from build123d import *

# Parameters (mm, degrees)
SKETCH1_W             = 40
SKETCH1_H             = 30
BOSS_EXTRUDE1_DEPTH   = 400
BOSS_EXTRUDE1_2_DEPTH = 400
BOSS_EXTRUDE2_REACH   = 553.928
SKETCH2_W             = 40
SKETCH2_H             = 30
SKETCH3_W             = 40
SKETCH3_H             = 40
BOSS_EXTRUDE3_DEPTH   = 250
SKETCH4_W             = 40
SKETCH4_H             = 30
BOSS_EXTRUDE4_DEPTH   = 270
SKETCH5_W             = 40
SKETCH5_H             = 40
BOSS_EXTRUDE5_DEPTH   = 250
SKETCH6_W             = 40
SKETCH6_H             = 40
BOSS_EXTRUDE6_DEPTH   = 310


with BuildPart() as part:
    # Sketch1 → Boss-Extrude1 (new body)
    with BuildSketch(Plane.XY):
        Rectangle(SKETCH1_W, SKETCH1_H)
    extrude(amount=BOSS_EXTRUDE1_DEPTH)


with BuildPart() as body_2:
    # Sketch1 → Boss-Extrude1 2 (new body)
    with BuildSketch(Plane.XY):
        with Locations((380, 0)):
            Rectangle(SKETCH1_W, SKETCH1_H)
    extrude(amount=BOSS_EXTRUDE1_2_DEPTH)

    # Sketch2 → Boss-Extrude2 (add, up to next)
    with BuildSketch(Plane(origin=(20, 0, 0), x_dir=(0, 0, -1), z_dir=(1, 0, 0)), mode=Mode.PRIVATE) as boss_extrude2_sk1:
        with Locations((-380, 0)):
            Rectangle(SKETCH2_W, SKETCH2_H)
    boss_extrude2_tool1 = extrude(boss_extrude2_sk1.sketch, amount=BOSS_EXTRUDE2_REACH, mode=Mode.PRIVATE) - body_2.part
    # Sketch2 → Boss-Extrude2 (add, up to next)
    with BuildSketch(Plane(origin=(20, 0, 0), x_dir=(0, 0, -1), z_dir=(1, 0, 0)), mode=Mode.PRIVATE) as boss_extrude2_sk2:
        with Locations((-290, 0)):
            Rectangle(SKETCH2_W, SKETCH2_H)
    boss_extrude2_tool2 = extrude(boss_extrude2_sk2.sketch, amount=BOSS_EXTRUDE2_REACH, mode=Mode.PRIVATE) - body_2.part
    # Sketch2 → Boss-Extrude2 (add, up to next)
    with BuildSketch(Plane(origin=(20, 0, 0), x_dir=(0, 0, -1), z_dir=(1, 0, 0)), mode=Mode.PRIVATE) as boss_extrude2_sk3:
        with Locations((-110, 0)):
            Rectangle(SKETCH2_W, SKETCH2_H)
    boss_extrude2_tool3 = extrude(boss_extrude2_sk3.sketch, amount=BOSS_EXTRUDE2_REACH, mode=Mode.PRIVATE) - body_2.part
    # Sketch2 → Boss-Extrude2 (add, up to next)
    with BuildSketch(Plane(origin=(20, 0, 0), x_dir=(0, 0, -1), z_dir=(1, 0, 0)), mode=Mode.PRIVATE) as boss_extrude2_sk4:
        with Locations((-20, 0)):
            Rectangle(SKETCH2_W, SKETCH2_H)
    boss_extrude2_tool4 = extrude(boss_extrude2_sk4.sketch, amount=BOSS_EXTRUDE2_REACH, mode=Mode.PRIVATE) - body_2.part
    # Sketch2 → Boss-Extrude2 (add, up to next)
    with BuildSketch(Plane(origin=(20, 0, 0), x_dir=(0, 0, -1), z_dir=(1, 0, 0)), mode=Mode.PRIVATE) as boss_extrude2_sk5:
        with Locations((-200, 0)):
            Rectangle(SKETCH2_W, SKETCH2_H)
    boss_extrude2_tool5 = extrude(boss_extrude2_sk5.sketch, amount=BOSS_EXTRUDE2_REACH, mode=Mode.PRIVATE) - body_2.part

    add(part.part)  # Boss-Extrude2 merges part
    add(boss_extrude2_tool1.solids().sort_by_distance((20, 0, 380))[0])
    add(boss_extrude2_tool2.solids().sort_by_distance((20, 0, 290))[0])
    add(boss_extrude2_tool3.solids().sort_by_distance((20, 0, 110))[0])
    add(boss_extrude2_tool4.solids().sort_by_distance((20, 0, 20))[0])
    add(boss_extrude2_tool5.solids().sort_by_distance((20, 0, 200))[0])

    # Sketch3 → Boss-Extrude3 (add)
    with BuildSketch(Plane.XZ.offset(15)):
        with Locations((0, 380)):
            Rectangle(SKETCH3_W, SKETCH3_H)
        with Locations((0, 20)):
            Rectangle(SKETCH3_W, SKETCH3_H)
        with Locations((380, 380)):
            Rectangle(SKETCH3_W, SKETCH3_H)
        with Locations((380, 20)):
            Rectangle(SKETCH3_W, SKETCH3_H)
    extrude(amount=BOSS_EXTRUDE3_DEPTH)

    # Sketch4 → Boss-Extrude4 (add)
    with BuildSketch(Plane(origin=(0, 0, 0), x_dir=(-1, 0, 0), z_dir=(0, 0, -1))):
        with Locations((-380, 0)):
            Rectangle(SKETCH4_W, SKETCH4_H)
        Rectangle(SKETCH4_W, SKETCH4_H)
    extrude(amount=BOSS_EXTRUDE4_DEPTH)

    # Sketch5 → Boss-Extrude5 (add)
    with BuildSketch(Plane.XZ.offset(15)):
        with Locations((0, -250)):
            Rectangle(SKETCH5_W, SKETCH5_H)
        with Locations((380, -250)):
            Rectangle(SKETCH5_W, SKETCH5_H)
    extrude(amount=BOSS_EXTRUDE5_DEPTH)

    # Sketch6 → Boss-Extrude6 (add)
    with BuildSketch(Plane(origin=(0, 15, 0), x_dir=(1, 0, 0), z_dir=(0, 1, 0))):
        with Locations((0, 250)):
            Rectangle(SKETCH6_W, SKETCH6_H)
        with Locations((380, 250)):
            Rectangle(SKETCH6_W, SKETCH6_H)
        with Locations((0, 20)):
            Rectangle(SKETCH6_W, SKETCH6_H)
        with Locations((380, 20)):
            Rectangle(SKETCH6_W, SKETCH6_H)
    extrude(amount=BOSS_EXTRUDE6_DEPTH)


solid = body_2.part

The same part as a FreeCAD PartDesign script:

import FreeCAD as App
import Part
import Sketcher
from FreeCAD import Vector
Q = App.Units.Quantity


def add_polygon(sketch, points):
    """Adds a closed chain of lines whose ends are joined by coincident constraints."""
    first, n = sketch.GeometryCount, len(points)
    for a, b in zip(points, points[1:] + points[:1]):
        sketch.addGeometry(Part.LineSegment(App.Vector(*a, 0), App.Vector(*b, 0)), False)
    for i in range(n):
        sketch.addConstraint(Sketcher.Constraint("Coincident", first + i, 2, first + (i + 1) % n, 1))

doc = App.newDocument("Part")
body = doc.addObject("PartDesign::Body", "Body")

# Sketch on XY plane
sketch1 = body.newObject("Sketcher::SketchObject", "Sketch")
sketch1.AttachmentSupport = (doc.getObject("XY_Plane"), [""])
sketch1.MapMode = "FlatFace"
add_polygon(sketch1, [(-20, 15), (-20, -15), (20, -15), (20, 15)])  # lines 0-3
sketch1.addConstraint(Sketcher.Constraint("Vertical", 0))
sketch1.addConstraint(Sketcher.Constraint("Horizontal", 1))
sketch1.addConstraint(Sketcher.Constraint("Vertical", 2))
sketch1.addConstraint(Sketcher.Constraint("Horizontal", 3))
sketch1.addConstraint(Sketcher.Constraint("Symmetric", 0, 2, 2, 2, -1, 1))
sketch1.addConstraint(Sketcher.Constraint("DistanceX", 1, 1, 1, 2, Q("40 mm")))
sketch1.addConstraint(Sketcher.Constraint("DistanceY", 0, 2, 0, 1, Q("30 mm")))
pad1 = body.newObject("PartDesign::Pad", "Pad")
pad1.Profile = sketch1
pad1.Length = 400
body2 = doc.addObject("PartDesign::Body", "Body001")
body2.AllowCompound = True

# Sketch on XY plane
sketch2 = body2.newObject("Sketcher::SketchObject", "Sketch001")
sketch2.AttachmentSupport = (doc.getObject("XY_Plane001"), [""])
sketch2.MapMode = "FlatFace"
add_polygon(sketch2, [(360, 15), (360, -15), (400, -15), (400, 15)])  # lines 0-3
sketch2.addConstraint(Sketcher.Constraint("Vertical", 0))
sketch2.addConstraint(Sketcher.Constraint("Horizontal", 1))
sketch2.addConstraint(Sketcher.Constraint("Vertical", 2))
sketch2.addConstraint(Sketcher.Constraint("Horizontal", 3))
sketch2.addConstraint(Sketcher.Constraint("DistanceX", 1, 1, 1, 2, Q("40 mm")))
sketch2.addConstraint(Sketcher.Constraint("DistanceY", 0, 2, 0, 1, Q("30 mm")))
sketch2.addConstraint(Sketcher.Constraint("DistanceX", -1, 1, 0, 2, Q("360 mm")))
sketch2.addConstraint(Sketcher.Constraint("DistanceY", 0, 2, -1, 1, Q("15 mm")))
pad2 = body2.newObject("PartDesign::Pad", "Pad001")
pad2.Profile = sketch2
pad2.Length = 400
doc.recompute()

boolean = body2.newObject("PartDesign::Boolean", "Boolean")
boolean.Type = "Fuse"
boolean.addObjects([body])

# Sketch on YZ plane
sketch3 = body2.newObject("Sketcher::SketchObject", "Sketch002")
sketch3.AttachmentSupport = (doc.getObject("YZ_Plane001"), [""])
sketch3.MapMode = "FlatFace"
sketch3.AttachmentOffset = App.Placement(Vector(0, 0, 20), App.Rotation())
add_polygon(sketch3, [(15, 400), (-15, 400), (-15, 360), (15, 360)])  # lines 0-3
sketch3.addConstraint(Sketcher.Constraint("Horizontal", 0))
sketch3.addConstraint(Sketcher.Constraint("Vertical", 1))
sketch3.addConstraint(Sketcher.Constraint("Horizontal", 2))
sketch3.addConstraint(Sketcher.Constraint("Vertical", 3))
sketch3.addConstraint(Sketcher.Constraint("DistanceX", 0, 2, 0, 1, Q("30 mm")))
sketch3.addConstraint(Sketcher.Constraint("DistanceY", 1, 2, 1, 1, Q("40 mm")))
sketch3.addConstraint(Sketcher.Constraint("DistanceX", 0, 2, -1, 1, Q("15 mm")))
sketch3.addConstraint(Sketcher.Constraint("DistanceY", -1, 1, 0, 2, Q("400 mm")))
pad3 = body2.newObject("PartDesign::Pad", "Pad002")
pad3.Profile = sketch3
pad3.Type = "UpToFirst"

# Sketch on YZ plane
sketch4 = body2.newObject("Sketcher::SketchObject", "Sketch003")
sketch4.AttachmentSupport = (doc.getObject("YZ_Plane001"), [""])
sketch4.MapMode = "FlatFace"
sketch4.AttachmentOffset = App.Placement(Vector(0, 0, 20), App.Rotation())
add_polygon(sketch4, [(15, 310), (-15, 310), (-15, 270), (15, 270)])  # lines 0-3
sketch4.addConstraint(Sketcher.Constraint("Horizontal", 0))
sketch4.addConstraint(Sketcher.Constraint("Vertical", 1))
sketch4.addConstraint(Sketcher.Constraint("Horizontal", 2))
sketch4.addConstraint(Sketcher.Constraint("Vertical", 3))
sketch4.addConstraint(Sketcher.Constraint("DistanceX", 0, 2, 0, 1, Q("30 mm")))
sketch4.addConstraint(Sketcher.Constraint("DistanceY", 1, 2, 1, 1, Q("40 mm")))
sketch4.addConstraint(Sketcher.Constraint("DistanceX", 0, 2, -1, 1, Q("15 mm")))
sketch4.addConstraint(Sketcher.Constraint("DistanceY", -1, 1, 0, 2, Q("310 mm")))
pad4 = body2.newObject("PartDesign::Pad", "Pad003")
pad4.Profile = sketch4
pad4.Type = "UpToFirst"

# Sketch on YZ plane
sketch5 = body2.newObject("Sketcher::SketchObject", "Sketch004")
sketch5.AttachmentSupport = (doc.getObject("YZ_Plane001"), [""])
sketch5.MapMode = "FlatFace"
sketch5.AttachmentOffset = App.Placement(Vector(0, 0, 20), App.Rotation())
add_polygon(sketch5, [(15, 130), (-15, 130), (-15, 90), (15, 90)])  # lines 0-3
sketch5.addConstraint(Sketcher.Constraint("Horizontal", 0))
sketch5.addConstraint(Sketcher.Constraint("Vertical", 1))
sketch5.addConstraint(Sketcher.Constraint("Horizontal", 2))
sketch5.addConstraint(Sketcher.Constraint("Vertical", 3))
sketch5.addConstraint(Sketcher.Constraint("DistanceX", 0, 2, 0, 1, Q("30 mm")))
sketch5.addConstraint(Sketcher.Constraint("DistanceY", 1, 2, 1, 1, Q("40 mm")))
sketch5.addConstraint(Sketcher.Constraint("DistanceX", 0, 2, -1, 1, Q("15 mm")))
sketch5.addConstraint(Sketcher.Constraint("DistanceY", -1, 1, 0, 2, Q("130 mm")))
pad5 = body2.newObject("PartDesign::Pad", "Pad004")
pad5.Profile = sketch5
pad5.Type = "UpToFirst"

# Sketch on YZ plane
sketch6 = body2.newObject("Sketcher::SketchObject", "Sketch005")
sketch6.AttachmentSupport = (doc.getObject("YZ_Plane001"), [""])
sketch6.MapMode = "FlatFace"
sketch6.AttachmentOffset = App.Placement(Vector(0, 0, 20), App.Rotation())
add_polygon(sketch6, [(15, 40), (-15, 40), (-15, 0), (15, 0)])  # lines 0-3
sketch6.addConstraint(Sketcher.Constraint("Horizontal", 0))
sketch6.addConstraint(Sketcher.Constraint("Vertical", 1))
sketch6.addConstraint(Sketcher.Constraint("Horizontal", 2))
sketch6.addConstraint(Sketcher.Constraint("Vertical", 3))
sketch6.addConstraint(Sketcher.Constraint("Symmetric", 1, 2, 2, 2, -1, 1))
sketch6.addConstraint(Sketcher.Constraint("DistanceX", 0, 2, 0, 1, Q("30 mm")))
sketch6.addConstraint(Sketcher.Constraint("DistanceY", 1, 2, 1, 1, Q("40 mm")))
pad6 = body2.newObject("PartDesign::Pad", "Pad005")
pad6.Profile = sketch6
pad6.Type = "UpToFirst"

# Sketch on YZ plane
sketch7 = body2.newObject("Sketcher::SketchObject", "Sketch006")
sketch7.AttachmentSupport = (doc.getObject("YZ_Plane001"), [""])
sketch7.MapMode = "FlatFace"
sketch7.AttachmentOffset = App.Placement(Vector(0, 0, 20), App.Rotation())
add_polygon(sketch7, [(15, 220), (-15, 220), (-15, 180), (15, 180)])  # lines 0-3
sketch7.addConstraint(Sketcher.Constraint("Horizontal", 0))
sketch7.addConstraint(Sketcher.Constraint("Vertical", 1))
sketch7.addConstraint(Sketcher.Constraint("Horizontal", 2))
sketch7.addConstraint(Sketcher.Constraint("Vertical", 3))
sketch7.addConstraint(Sketcher.Constraint("DistanceX", 0, 2, 0, 1, Q("30 mm")))
sketch7.addConstraint(Sketcher.Constraint("DistanceY", 1, 2, 1, 1, Q("40 mm")))
sketch7.addConstraint(Sketcher.Constraint("DistanceX", 0, 2, -1, 1, Q("15 mm")))
sketch7.addConstraint(Sketcher.Constraint("DistanceY", -1, 1, 0, 2, Q("220 mm")))
pad7 = body2.newObject("PartDesign::Pad", "Pad006")
pad7.Profile = sketch7
pad7.Type = "UpToFirst"

# Sketch on XZ plane
sketch8 = body2.newObject("Sketcher::SketchObject", "Sketch007")
sketch8.AttachmentSupport = (doc.getObject("XZ_Plane001"), [""])
sketch8.MapMode = "FlatFace"
sketch8.AttachmentOffset = App.Placement(Vector(0, 0, 15), App.Rotation())
add_polygon(sketch8, [(-20, 400), (-20, 360), (20, 360), (20, 400)])  # lines 0-3
add_polygon(sketch8, [(-20, 40), (-20, 0), (20, 0), (20, 40)])  # lines 4-7
add_polygon(sketch8, [(360, 400), (360, 360), (400, 360), (400, 400)])  # lines 8-11
add_polygon(sketch8, [(360, 40), (360, 0), (400, 0), (400, 40)])  # lines 12-15
sketch8.addConstraint(Sketcher.Constraint("Vertical", 0))
sketch8.addConstraint(Sketcher.Constraint("Horizontal", 1))
sketch8.addConstraint(Sketcher.Constraint("Vertical", 2))
sketch8.addConstraint(Sketcher.Constraint("Horizontal", 3))
sketch8.addConstraint(Sketcher.Constraint("Vertical", 4))
sketch8.addConstraint(Sketcher.Constraint("Horizontal", 5))
sketch8.addConstraint(Sketcher.Constraint("Vertical", 6))
sketch8.addConstraint(Sketcher.Constraint("Horizontal", 7))
sketch8.addConstraint(Sketcher.Constraint("Vertical", 8))
sketch8.addConstraint(Sketcher.Constraint("Horizontal", 9))
sketch8.addConstraint(Sketcher.Constraint("Vertical", 10))
sketch8.addConstraint(Sketcher.Constraint("Horizontal", 11))
sketch8.addConstraint(Sketcher.Constraint("Vertical", 12))
sketch8.addConstraint(Sketcher.Constraint("Horizontal", 13))
sketch8.addConstraint(Sketcher.Constraint("Vertical", 14))
sketch8.addConstraint(Sketcher.Constraint("Horizontal", 15))
sketch8.addConstraint(Sketcher.Constraint("Symmetric", 4, 2, 5, 2, -1, 1))
sketch8.addConstraint(Sketcher.Constraint("PointOnObject", 12, 2, -1))
sketch8.addConstraint(Sketcher.Constraint("Horizontal", 1, 2, 8, 2))
sketch8.addConstraint(Sketcher.Constraint("Horizontal", 3, 2, 10, 2))
sketch8.addConstraint(Sketcher.Constraint("Horizontal", 7, 2, 14, 2))
sketch8.addConstraint(Sketcher.Constraint("Vertical", 3, 2, 4, 2))
sketch8.addConstraint(Sketcher.Constraint("Vertical", 2, 2, 5, 2))
sketch8.addConstraint(Sketcher.Constraint("Vertical", 11, 2, 12, 2))
sketch8.addConstraint(Sketcher.Constraint("Vertical", 10, 2, 13, 2))
sketch8.addConstraint(Sketcher.Constraint("Equal", 7, 9))
sketch8.addConstraint(Sketcher.Constraint("Equal", 15, 0))
sketch8.addConstraint(Sketcher.Constraint("Equal", 2, 4))
sketch8.addConstraint(Sketcher.Constraint("DistanceX", 1, 1, 1, 2, Q("40 mm")))
sketch8.addConstraint(Sketcher.Constraint("DistanceY", -1, 1, 0, 2, Q("360 mm")))
sketch8.addConstraint(Sketcher.Constraint("DistanceX", -1, 1, 8, 2, Q("360 mm")))
pad8 = body2.newObject("PartDesign::Pad", "Pad007")
pad8.Profile = sketch8
pad8.Length = 250

# Sketch on XY plane
sketch9 = body2.newObject("Sketcher::SketchObject", "Sketch008")
sketch9.AttachmentSupport = (doc.getObject("XY_Plane001"), [""])
sketch9.MapMode = "FlatFace"
add_polygon(sketch9, [(400, 15), (400, -15), (360, -15), (360, 15)])  # lines 0-3
add_polygon(sketch9, [(20, 15), (20, -15), (-20, -15), (-20, 15)])  # lines 4-7
sketch9.addConstraint(Sketcher.Constraint("Vertical", 0))
sketch9.addConstraint(Sketcher.Constraint("Horizontal", 1))
sketch9.addConstraint(Sketcher.Constraint("Vertical", 2))
sketch9.addConstraint(Sketcher.Constraint("Horizontal", 3))
sketch9.addConstraint(Sketcher.Constraint("Vertical", 4))
sketch9.addConstraint(Sketcher.Constraint("Horizontal", 5))
sketch9.addConstraint(Sketcher.Constraint("Vertical", 6))
sketch9.addConstraint(Sketcher.Constraint("Horizontal", 7))
sketch9.addConstraint(Sketcher.Constraint("Symmetric", 4, 2, 6, 2, -1, 1))
sketch9.addConstraint(Sketcher.Constraint("Horizontal", 1, 2, 4, 2))
sketch9.addConstraint(Sketcher.Constraint("Horizontal", 3, 2, 6, 2))
sketch9.addConstraint(Sketcher.Constraint("Equal", 3, 5))
sketch9.addConstraint(Sketcher.Constraint("DistanceX", 1, 2, 1, 1, Q("40 mm")))
sketch9.addConstraint(Sketcher.Constraint("DistanceY", 0, 2, 0, 1, Q("30 mm")))
sketch9.addConstraint(Sketcher.Constraint("DistanceX", -1, 1, 0, 2, Q("400 mm")))
pad9 = body2.newObject("PartDesign::Pad", "Pad008")
pad9.Profile = sketch9
pad9.Length = 270
pad9.Reversed = True

# Sketch on XZ plane
sketch10 = body2.newObject("Sketcher::SketchObject", "Sketch009")
sketch10.AttachmentSupport = (doc.getObject("XZ_Plane001"), [""])
sketch10.MapMode = "FlatFace"
sketch10.AttachmentOffset = App.Placement(Vector(0, 0, 15), App.Rotation())
add_polygon(sketch10, [(-20, -230), (-20, -270), (20, -270), (20, -230)])  # lines 0-3
add_polygon(sketch10, [(360, -230), (360, -270), (400, -270), (400, -230)])  # lines 4-7
sketch10.addConstraint(Sketcher.Constraint("Vertical", 0))
sketch10.addConstraint(Sketcher.Constraint("Horizontal", 1))
sketch10.addConstraint(Sketcher.Constraint("Vertical", 2))
sketch10.addConstraint(Sketcher.Constraint("Horizontal", 3))
sketch10.addConstraint(Sketcher.Constraint("Vertical", 4))
sketch10.addConstraint(Sketcher.Constraint("Horizontal", 5))
sketch10.addConstraint(Sketcher.Constraint("Vertical", 6))
sketch10.addConstraint(Sketcher.Constraint("Horizontal", 7))
sketch10.addConstraint(Sketcher.Constraint("Horizontal", 1, 2, 4, 2))
sketch10.addConstraint(Sketcher.Constraint("Horizontal", 3, 2, 6, 2))
sketch10.addConstraint(Sketcher.Constraint("Equal", 3, 5))
sketch10.addConstraint(Sketcher.Constraint("Equal", 7, 0))
sketch10.addConstraint(Sketcher.Constraint("DistanceX", 1, 1, 1, 2, Q("40 mm")))
sketch10.addConstraint(Sketcher.Constraint("DistanceX", 0, 2, -1, 1, Q("20 mm")))
sketch10.addConstraint(Sketcher.Constraint("DistanceY", 0, 2, -1, 1, Q("270 mm")))
sketch10.addConstraint(Sketcher.Constraint("DistanceX", -1, 1, 4, 2, Q("360 mm")))
pad10 = body2.newObject("PartDesign::Pad", "Pad009")
pad10.Profile = sketch10
pad10.Length = 250

# Sketch on XZ plane
sketch11 = body2.newObject("Sketcher::SketchObject", "Sketch010")
sketch11.AttachmentSupport = (doc.getObject("XZ_Plane001"), [""])
sketch11.MapMode = "FlatFace"
sketch11.AttachmentOffset = App.Placement(Vector(0, 0, -15), App.Rotation())
add_polygon(sketch11, [(-20, -270), (-20, -230), (20, -230), (20, -270)])  # lines 0-3
add_polygon(sketch11, [(360, -270), (360, -230), (400, -230), (400, -270)])  # lines 4-7
add_polygon(sketch11, [(-20, -40), (-20, 0), (20, 0), (20, -40)])  # lines 8-11
add_polygon(sketch11, [(360, -40), (360, 0), (400, 0), (400, -40)])  # lines 12-15
sketch11.addConstraint(Sketcher.Constraint("Vertical", 0))
sketch11.addConstraint(Sketcher.Constraint("Horizontal", 1))
sketch11.addConstraint(Sketcher.Constraint("Vertical", 2))
sketch11.addConstraint(Sketcher.Constraint("Horizontal", 3))
sketch11.addConstraint(Sketcher.Constraint("Vertical", 4))
sketch11.addConstraint(Sketcher.Constraint("Horizontal", 5))
sketch11.addConstraint(Sketcher.Constraint("Vertical", 6))
sketch11.addConstraint(Sketcher.Constraint("Horizontal", 7))
sketch11.addConstraint(Sketcher.Constraint("Vertical", 8))
sketch11.addConstraint(Sketcher.Constraint("Horizontal", 9))
sketch11.addConstraint(Sketcher.Constraint("Vertical", 10))
sketch11.addConstraint(Sketcher.Constraint("Horizontal", 11))
sketch11.addConstraint(Sketcher.Constraint("Vertical", 12))
sketch11.addConstraint(Sketcher.Constraint("Horizontal", 13))
sketch11.addConstraint(Sketcher.Constraint("Vertical", 14))
sketch11.addConstraint(Sketcher.Constraint("Horizontal", 15))
sketch11.addConstraint(Sketcher.Constraint("Symmetric", 8, 2, 9, 2, -1, 1))
sketch11.addConstraint(Sketcher.Constraint("PointOnObject", 12, 2, -1))
sketch11.addConstraint(Sketcher.Constraint("Horizontal", 1, 2, 4, 2))
sketch11.addConstraint(Sketcher.Constraint("Horizontal", 3, 2, 6, 2))
sketch11.addConstraint(Sketcher.Constraint("Horizontal", 11, 2, 14, 2))
sketch11.addConstraint(Sketcher.Constraint("Vertical", 3, 2, 8, 2))
sketch11.addConstraint(Sketcher.Constraint("Vertical", 2, 2, 9, 2))
sketch11.addConstraint(Sketcher.Constraint("Vertical", 7, 2, 12, 2))
sketch11.addConstraint(Sketcher.Constraint("Vertical", 6, 2, 13, 2))
sketch11.addConstraint(Sketcher.Constraint("Equal", 3, 5))
sketch11.addConstraint(Sketcher.Constraint("Equal", 15, 0))
sketch11.addConstraint(Sketcher.Constraint("Equal", 6, 8))
sketch11.addConstraint(Sketcher.Constraint("DistanceX", 1, 1, 1, 2, Q("40 mm")))
sketch11.addConstraint(Sketcher.Constraint("DistanceY", 0, 2, -1, 1, Q("230 mm")))
sketch11.addConstraint(Sketcher.Constraint("DistanceX", -1, 1, 4, 2, Q("360 mm")))
pad11 = body2.newObject("PartDesign::Pad", "Pad010")
pad11.Profile = sketch11
pad11.Length = 310
pad11.Reversed = True

doc.recompute()
